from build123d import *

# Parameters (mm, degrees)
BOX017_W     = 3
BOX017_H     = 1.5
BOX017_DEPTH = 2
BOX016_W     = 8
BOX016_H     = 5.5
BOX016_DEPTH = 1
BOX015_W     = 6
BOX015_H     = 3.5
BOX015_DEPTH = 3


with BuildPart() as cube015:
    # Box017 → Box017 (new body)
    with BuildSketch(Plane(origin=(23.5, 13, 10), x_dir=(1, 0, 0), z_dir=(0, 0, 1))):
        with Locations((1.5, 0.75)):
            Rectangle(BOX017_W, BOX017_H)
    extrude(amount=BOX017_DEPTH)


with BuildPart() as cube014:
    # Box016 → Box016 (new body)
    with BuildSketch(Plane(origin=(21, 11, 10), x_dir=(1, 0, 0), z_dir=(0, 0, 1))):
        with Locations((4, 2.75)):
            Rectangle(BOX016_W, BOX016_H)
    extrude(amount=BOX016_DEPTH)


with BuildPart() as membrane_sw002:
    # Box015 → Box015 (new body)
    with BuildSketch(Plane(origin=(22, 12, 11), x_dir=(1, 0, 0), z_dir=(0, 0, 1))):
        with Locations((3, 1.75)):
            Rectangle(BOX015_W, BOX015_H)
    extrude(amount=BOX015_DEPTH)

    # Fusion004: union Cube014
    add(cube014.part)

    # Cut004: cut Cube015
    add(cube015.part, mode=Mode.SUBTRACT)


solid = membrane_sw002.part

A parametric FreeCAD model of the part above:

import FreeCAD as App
import Part
import Sketcher
Q = App.Units.Quantity


def add_polygon(sketch, points):
    """Adds a closed chain of lines whose ends are joined by coincident constraints."""
    first, n = sketch.GeometryCount, len(points)
    for a, b in zip(points, points[1:] + points[:1]):
        sketch.addGeometry(Part.LineSegment(App.Vector(*a, 0), App.Vector(*b, 0)), False)
    for i in range(n):
        sketch.addConstraint(Sketcher.Constraint("Coincident", first + i, 2, first + (i + 1) % n, 1))

doc = App.newDocument("Part")
body = doc.addObject("PartDesign::Body", "Body")

sketch1 = body.newObject("Sketcher::SketchObject", "Sketch")
sketch1.AttachmentSupport = (doc.getObject("XY_Plane"), [""])
sketch1.MapMode = "FlatFace"
sketch1.AttachmentOffset = App.Placement(App.Vector(0, 0, 10), App.Rotation())
add_polygon(sketch1, [(23.5, 14.5), (23.5, 13), (26.5, 13), (26.5, 14.5)])
sketch1.addConstraint([
    Sketcher.Constraint("Vertical", 0),
    Sketcher.Constraint("Horizontal", 1),
    Sketcher.Constraint("Vertical", 2),
    Sketcher.Constraint("Horizontal", 3),
    Sketcher.Constraint("DistanceX", 1, 1, 1, 2, Q("3 mm")),
    Sketcher.Constraint("DistanceY", 0, 2, 0, 1, Q("1.5 mm")),
    Sketcher.Constraint("DistanceY", -1, 1, 0, 2, Q("13 mm")),
    Sketcher.Constraint("DistanceX", -1, 1, 0, 2, Q("23.5 mm")),
])
pad1 = body.newObject("PartDesign::Pad", "Pad")
pad1.Profile = sketch1
pad1.Length = 2
body2 = doc.addObject("PartDesign::Body", "Body001")

sketch2 = body2.newObject("Sketcher::SketchObject", "Sketch001")
sketch2.AttachmentSupport = (doc.getObject("XY_Plane001"), [""])
sketch2.MapMode = "FlatFace"
sketch2.AttachmentOffset = App.Placement(App.Vector(0, 0, 10), App.Rotation())
add_polygon(sketch2, [(21, 16), (21, 11), (29, 11), (29, 16)])
sketch2.addConstraint([
    Sketcher.Constraint("Vertical", 0),
    Sketcher.Constraint("Horizontal", 1),
    Sketcher.Constraint("Vertical", 2),
    Sketcher.Constraint("Horizontal", 3),
    Sketcher.Constraint("DistanceX", 1, 1, 1, 2, Q("8 mm")),
    Sketcher.Constraint("DistanceY", 0, 2, 0, 1, Q("5.5 mm")),
    Sketcher.Constraint("DistanceX", -1, 1, 0, 2, Q("21 mm")),
    Sketcher.Constraint("DistanceY", -1, 1, 0, 2, Q("11 mm")),
])
pad2 = body2.newObject("PartDesign::Pad", "Pad001")
pad2.Profile = sketch2
pad2.Length = 1
body3 = doc.addObject("PartDesign::Body", "Body002")

sketch3 = body3.newObject("Sketcher::SketchObject", "Sketch002")
sketch3.AttachmentSupport = (doc.getObject("XY_Plane002"), [""])
sketch3.MapMode = "FlatFace"
sketch3.AttachmentOffset = App.Placement(App.Vector(0, 0, 11), App.Rotation())
add_polygon(sketch3, [(22, 15.5), (22, 12), (28, 12), (28, 15.5)])
sketch3.addConstraint([
    Sketcher.Constraint("Vertical", 0),
    Sketcher.Constraint("Horizontal", 1),
    Sketcher.Constraint("Vertical", 2),
    Sketcher.Constraint("Horizontal", 3),
    Sketcher.Constraint("DistanceX", 1, 1, 1, 2, Q("6 mm")),
    Sketcher.Constraint("DistanceY", 0, 2, 0, 1, Q("3.5 mm")),
    Sketcher.Constraint("DistanceX", -1, 1, 0, 2, Q("22 mm")),
    Sketcher.Constraint("DistanceY", -1, 1, 0, 2, Q("12 mm")),
])
pad3 = body3.newObject("PartDesign::Pad", "Pad002")
pad3.Profile = sketch3
pad3.Length = 3
doc.recompute()

boolean = body3.newObject("PartDesign::Boolean", "Boolean")
boolean.Type = "Fuse"
boolean.addObjects([body2])
doc.recompute()

boolean2 = body3.newObject("PartDesign::Boolean", "Boolean001")
boolean2.Type = "Cut"
boolean2.addObjects([body])

doc.recompute()
